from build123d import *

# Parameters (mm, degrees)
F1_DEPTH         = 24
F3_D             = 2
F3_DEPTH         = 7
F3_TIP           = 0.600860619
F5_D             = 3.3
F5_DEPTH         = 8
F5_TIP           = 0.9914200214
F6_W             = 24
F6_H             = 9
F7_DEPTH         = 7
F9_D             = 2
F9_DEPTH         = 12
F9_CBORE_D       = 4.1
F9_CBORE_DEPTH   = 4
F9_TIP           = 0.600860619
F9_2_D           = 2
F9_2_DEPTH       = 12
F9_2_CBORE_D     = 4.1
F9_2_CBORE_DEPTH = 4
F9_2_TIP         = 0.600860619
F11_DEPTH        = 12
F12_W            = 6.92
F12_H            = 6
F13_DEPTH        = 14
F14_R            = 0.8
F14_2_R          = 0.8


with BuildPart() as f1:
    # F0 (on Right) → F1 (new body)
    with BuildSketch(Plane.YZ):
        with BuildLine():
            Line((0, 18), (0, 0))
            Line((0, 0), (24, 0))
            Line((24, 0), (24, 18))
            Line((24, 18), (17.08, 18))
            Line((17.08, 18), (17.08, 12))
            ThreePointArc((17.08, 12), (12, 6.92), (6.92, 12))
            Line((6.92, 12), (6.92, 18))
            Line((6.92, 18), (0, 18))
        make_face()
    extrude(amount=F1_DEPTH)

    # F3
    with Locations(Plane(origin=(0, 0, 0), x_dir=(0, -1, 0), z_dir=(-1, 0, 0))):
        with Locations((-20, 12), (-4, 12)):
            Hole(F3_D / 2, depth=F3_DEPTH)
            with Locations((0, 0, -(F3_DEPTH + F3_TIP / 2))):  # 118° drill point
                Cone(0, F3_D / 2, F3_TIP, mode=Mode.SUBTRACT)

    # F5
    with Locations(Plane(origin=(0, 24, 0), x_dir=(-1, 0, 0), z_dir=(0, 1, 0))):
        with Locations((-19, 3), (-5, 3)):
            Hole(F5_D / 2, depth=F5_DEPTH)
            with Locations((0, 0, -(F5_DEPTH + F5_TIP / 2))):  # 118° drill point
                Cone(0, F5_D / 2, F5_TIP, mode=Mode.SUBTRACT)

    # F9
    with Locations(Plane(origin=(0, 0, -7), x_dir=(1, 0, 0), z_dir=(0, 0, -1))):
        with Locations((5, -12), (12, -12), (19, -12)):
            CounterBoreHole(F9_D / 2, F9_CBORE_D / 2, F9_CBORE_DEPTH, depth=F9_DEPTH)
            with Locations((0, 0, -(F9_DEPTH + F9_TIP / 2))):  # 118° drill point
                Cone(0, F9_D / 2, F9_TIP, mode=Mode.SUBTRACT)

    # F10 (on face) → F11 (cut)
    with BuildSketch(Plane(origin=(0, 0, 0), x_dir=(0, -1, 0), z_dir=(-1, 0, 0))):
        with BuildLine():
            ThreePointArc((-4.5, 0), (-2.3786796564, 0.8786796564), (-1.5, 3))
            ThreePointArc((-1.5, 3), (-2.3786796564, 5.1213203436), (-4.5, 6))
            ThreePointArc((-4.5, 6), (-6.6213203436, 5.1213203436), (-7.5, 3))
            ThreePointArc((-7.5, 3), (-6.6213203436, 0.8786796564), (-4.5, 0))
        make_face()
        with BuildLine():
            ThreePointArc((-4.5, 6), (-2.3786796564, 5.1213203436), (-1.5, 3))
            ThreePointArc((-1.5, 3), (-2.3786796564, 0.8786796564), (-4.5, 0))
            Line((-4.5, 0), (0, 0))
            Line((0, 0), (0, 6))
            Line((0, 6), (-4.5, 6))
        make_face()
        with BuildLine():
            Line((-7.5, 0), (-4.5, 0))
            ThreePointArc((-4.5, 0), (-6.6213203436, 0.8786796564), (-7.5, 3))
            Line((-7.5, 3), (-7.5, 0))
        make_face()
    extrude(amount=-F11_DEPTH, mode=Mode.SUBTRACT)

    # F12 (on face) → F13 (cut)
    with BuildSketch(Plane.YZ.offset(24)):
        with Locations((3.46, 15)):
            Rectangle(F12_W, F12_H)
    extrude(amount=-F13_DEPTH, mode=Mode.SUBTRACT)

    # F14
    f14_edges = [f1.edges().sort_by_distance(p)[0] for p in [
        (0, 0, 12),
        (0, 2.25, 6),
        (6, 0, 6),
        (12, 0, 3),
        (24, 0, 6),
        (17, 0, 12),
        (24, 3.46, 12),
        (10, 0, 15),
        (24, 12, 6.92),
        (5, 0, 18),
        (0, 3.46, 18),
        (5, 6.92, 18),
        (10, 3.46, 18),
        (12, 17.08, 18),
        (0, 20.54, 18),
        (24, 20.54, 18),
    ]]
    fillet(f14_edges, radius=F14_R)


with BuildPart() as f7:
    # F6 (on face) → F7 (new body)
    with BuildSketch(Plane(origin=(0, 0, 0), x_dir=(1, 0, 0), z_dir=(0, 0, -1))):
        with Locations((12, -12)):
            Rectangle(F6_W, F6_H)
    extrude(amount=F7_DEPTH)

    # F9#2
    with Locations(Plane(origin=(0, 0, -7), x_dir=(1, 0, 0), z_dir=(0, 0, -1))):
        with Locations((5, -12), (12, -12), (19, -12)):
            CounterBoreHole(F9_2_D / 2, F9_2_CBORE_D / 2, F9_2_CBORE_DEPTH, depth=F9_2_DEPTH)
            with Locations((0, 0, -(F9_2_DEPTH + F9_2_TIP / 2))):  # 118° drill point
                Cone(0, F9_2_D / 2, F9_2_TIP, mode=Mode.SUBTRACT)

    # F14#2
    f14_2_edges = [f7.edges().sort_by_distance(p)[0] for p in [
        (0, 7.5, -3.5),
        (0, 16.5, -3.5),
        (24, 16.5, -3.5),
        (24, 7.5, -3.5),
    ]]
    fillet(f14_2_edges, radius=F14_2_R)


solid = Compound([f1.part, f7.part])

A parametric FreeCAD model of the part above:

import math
import FreeCAD as App
import Part
import Sketcher

V = App.Vector


def edges_at(feature, points):
    """Names of the edges that pass closest to the given points."""
    edges = feature.Shape.Edges
    near = lambda p: min(range(len(edges)), key=lambda i: edges[i].distToShape(Part.Vertex(*p))[0])
    return sorted({f"Edge{near(p) + 1}" for p in points})


def add_polygon(sketch, points):
    """Adds a closed chain of lines whose ends are joined by coincident constraints."""
    first, n = sketch.GeometryCount, len(points)
    for a, b in zip(points, points[1:] + points[:1]):
        sketch.addGeometry(Part.LineSegment(App.Vector(*a, 0), App.Vector(*b, 0)), False)
    for i in range(n):
        sketch.addConstraint(Sketcher.Constraint("Coincident", first + i, 2, first + (i + 1) % n, 1))

doc = App.newDocument("Part")
params = doc.addObject("Spreadsheet::Sheet", "Params")
for row, (alias, value) in enumerate([
    ("sketch1_width", "24 mm"),
    ("sketch1_height", "18 mm"),
    ("sketch1_height2", "6 mm"),
    ("sketch1_radius", "5.08 mm"),
    ("pad1_length", "24 mm"),
    ("sketch2_diameter", "2 mm"),
    ("hole_diameter", "2 mm"),
    ("hole_depth", "7 mm"),
    ("sketch3_diameter", "3.3 mm"),
    ("hole2_diameter", "3.3 mm"),
    ("hole2_depth", "8 mm"),
    ("sketch4_diameter", "2 mm"),
    ("hole3_diameter", "2 mm"),
    ("hole3_depth", "12 mm"),
    ("hole3_cbore_diameter", "4.1 mm"),
    ("hole3_cbore_depth", "4 mm"),
    ("sketch5_radius", "3 mm"),
    ("sketch5_height", "3 mm"),
    ("sketch5_width", "7.5 mm"),
    ("pocket1_length", "12 mm"),
    ("sketch6_height", "6 mm"),
    ("sketch6_width", "6.92 mm"),
    ("pocket2_length", "14 mm"),
    ("fillet_radius", "0.8 mm"),
    ("sketch7_width", "24 mm"),
    ("sketch7_height", "9 mm"),
    ("pad2_length", "7 mm"),
    ("sketch8_diameter", "2 mm"),
    ("hole4_diameter", "2 mm"),
    ("hole4_depth", "12 mm"),
    ("hole4_cbore_diameter", "4.1 mm"),
    ("hole4_cbore_depth", "4 mm"),
    ("fillet2_radius", "0.8 mm"),
], start=1):
    params.set(f"A{row}", alias)
    params.set(f"B{row}", "=" + value)
    params.setAlias(f"B{row}", alias)

body = doc.addObject("PartDesign::Body", "Body")

# Sketch on YZ plane
sketch1 = body.newObject("Sketcher::SketchObject", "Sketch")
sketch1.AttachmentSupport = (doc.getObject("YZ_Plane"), [""])
sketch1.MapMode = "FlatFace"
sketch1.addGeometry(Part.LineSegment(V(0, 18, 0), V(0, 0, 0)), False)
sketch1.addGeometry(Part.LineSegment(V(0, 0, 0), V(24, 0, 0)), False)
sketch1.addGeometry(Part.LineSegment(V(24, 0, 0), V(24, 18, 0)), False)
sketch1.addGeometry(Part.LineSegment(V(24, 18, 0), V(17, 18, 0)), False)
sketch1.addGeometry(Part.LineSegment(V(17, 18, 0), V(17, 12, 0)), False)
sketch1.addGeometry(Part.ArcOfCircle(Part.Circle(V(12, 12, 0), V(0, 0, 1), 5), math.radians(180), math.radians(360)), False)
sketch1.addGeometry(Part.LineSegment(V(7, 12, 0), V(7, 18, 0)), False)
sketch1.addGeometry(Part.LineSegment(V(7, 18, 0), V(0, 18, 0)), False)
sketch1.addConstraint(Sketcher.Constraint("Coincident", 0, 2, 1, 1))
sketch1.addConstraint(Sketcher.Constraint("Coincident", 1, 2, 2, 1))
sketch1.addConstraint(Sketcher.Constraint("Coincident", 2, 2, 3, 1))
sketch1.addConstraint(Sketcher.Constraint("Coincident", 3, 2, 4, 1))
sketch1.addConstraint(Sketcher.Constraint("Tangent", 4, 2, 5, 2))
sketch1.addConstraint(Sketcher.Constraint("Tangent", 5, 1, 6, 1))
sketch1.addConstraint(Sketcher.Constraint("Coincident", 6, 2, 7, 1))
sketch1.addConstraint(Sketcher.Constraint("Coincident", 7, 2, 0, 1))
sketch1.addConstraint(Sketcher.Constraint("Vertical", 0))
sketch1.addConstraint(Sketcher.Constraint("Horizontal", 1))
sketch1.addConstraint(Sketcher.Constraint("Vertical", 2))
sketch1.addConstraint(Sketcher.Constraint("Horizontal", 3))
sketch1.addConstraint(Sketcher.Constraint("Vertical", 4))
sketch1.addConstraint(Sketcher.Constraint("Vertical", 6))
sketch1.addConstraint(Sketcher.Constraint("Horizontal", 7))
sketch1.addConstraint(Sketcher.Constraint("Coincident", 0, 2, -1, 1))
sketch1.addConstraint(Sketcher.Constraint("Horizontal", 3, 2, 6, 2))
sketch1.addConstraint(Sketcher.Constraint("Equal", 3, 7))
sketch1.addConstraint(Sketcher.Constraint("DistanceX", 1, 1, 1, 2, 24.0))
sketch1.addConstraint(Sketcher.Constraint("DistanceY", 0, 2, 0, 1, 18.0))
sketch1.addConstraint(Sketcher.Constraint("DistanceY", 4, 2, 4, 1, 6.0))
sketch1.addConstraint(Sketcher.Constraint("Radius", 5, 5.08))
sketch1.setExpression("Constraints[18]", "Params.sketch1_width")
sketch1.setExpression("Constraints[19]", "Params.sketch1_height")
sketch1.setExpression("Constraints[20]", "Params.sketch1_height2")
sketch1.setExpression("Constraints[21]", "Params.sketch1_radius")
pad1 = body.newObject("PartDesign::Pad", "Pad")
pad1.Profile = sketch1
pad1.setExpression("Length", "Params.pad1_length")

# Sketch on YZ plane
sketch2 = body.newObject("Sketcher::SketchObject", "Sketch001")
sketch2.AttachmentSupport = (doc.getObject("YZ_Plane"), [""])
sketch2.MapMode = "FlatFace"
sketch2.addGeometry(Part.Circle(V(20, 12, 0), V(0, 0, 1), 1), False)
sketch2.addGeometry(Part.Circle(V(4, 12, 0), V(0, 0, 1), 1), False)
sketch2.addConstraint(Sketcher.Constraint("Equal", 0, 1))
sketch2.addConstraint(Sketcher.Constraint("Horizontal", 0, 3, 1, 3))
sketch2.addConstraint(Sketcher.Constraint("Diameter", 0, 2.0))
sketch2.addConstraint(Sketcher.Constraint("DistanceX", -1, 1, 0, 3, 20.0))
sketch2.addConstraint(Sketcher.Constraint("DistanceY", -1, 1, 0, 3, 12.0))
sketch2.addConstraint(Sketcher.Constraint("DistanceX", -1, 1, 1, 3, 4.0))
sketch2.setExpression("Constraints[2]", "Params.sketch2_diameter")
doc.recompute()
hole = body.newObject("PartDesign::Hole", "Hole")
hole.Profile = sketch2
hole.ThreadType = "None"
hole.setExpression("Diameter", "Params.hole_diameter")
hole.DepthType = "Dimension"
hole.setExpression("Depth", "Params.hole_depth")
hole.DrillPoint = "Angled"
hole.DrillPointAngle = 118
hole.Reversed = True

# Sketch on XZ plane
sketch3 = body.newObject("Sketcher::SketchObject", "Sketch002")
sketch3.AttachmentSupport = (doc.getObject("XZ_Plane"), [""])
sketch3.MapMode = "FlatFace"
sketch3.AttachmentOffset = App.Placement(V(0, 0, -24), App.Rotation())
sketch3.addGeometry(Part.Circle(V(19, 3, 0), V(0, 0, 1), 1.6), False)
sketch3.addGeometry(Part.Circle(V(5, 3, 0), V(0, 0, 1), 1.6), False)
sketch3.addConstraint(Sketcher.Constraint("Equal", 0, 1))
sketch3.addConstraint(Sketcher.Constraint("Horizontal", 0, 3, 1, 3))
sketch3.addConstraint(Sketcher.Constraint("Diameter", 0, 3.3))
sketch3.addConstraint(Sketcher.Constraint("DistanceX", -1, 1, 0, 3, 19.0))
sketch3.addConstraint(Sketcher.Constraint("DistanceY", -1, 1, 0, 3, 3.0))
sketch3.addConstraint(Sketcher.Constraint("DistanceX", -1, 1, 1, 3, 5.0))
sketch3.setExpression("Constraints[2]", "Params.sketch3_diameter")
doc.recompute()
hole2 = body.newObject("PartDesign::Hole", "Hole001")
hole2.Profile = sketch3
hole2.ThreadType = "None"
hole2.setExpression("Diameter", "Params.hole2_diameter")
hole2.DepthType = "Dimension"
hole2.setExpression("Depth", "Params.hole2_depth")
hole2.DrillPoint = "Angled"
hole2.DrillPointAngle = 118
hole2.Reversed = True

# Sketch on XY plane
sketch4 = body.newObject("Sketcher::SketchObject", "Sketch003")
sketch4.AttachmentSupport = (doc.getObject("XY_Plane"), [""])
sketch4.MapMode = "FlatFace"
sketch4.AttachmentOffset = App.Placement(V(0, 0, -7), App.Rotation())
sketch4.addGeometry(Part.Circle(V(5, 12, 0), V(0, 0, 1), 1), False)
sketch4.addGeometry(Part.Circle(V(12, 12, 0), V(0, 0, 1), 1), False)
sketch4.addGeometry(Part.Circle(V(19, 12, 0), V(0, 0, 1), 1), False)
sketch4.addConstraint(Sketcher.Constraint("Equal", 0, 1))
sketch4.addConstraint(Sketcher.Constraint("Equal", 1, 2))
sketch4.addConstraint(Sketcher.Constraint("Horizontal", 0, 3, 1, 3))
sketch4.addConstraint(Sketcher.Constraint("Horizontal", 1, 3, 2, 3))
sketch4.addConstraint(Sketcher.Constraint("Diameter", 0, 2.0))
sketch4.addConstraint(Sketcher.Constraint("DistanceX", -1, 1, 0, 3, 5.0))
sketch4.addConstraint(Sketcher.Constraint("DistanceY", -1, 1, 0, 3, 12.0))
sketch4.addConstraint(Sketcher.Constraint("DistanceX", -1, 1, 1, 3, 12.0))
sketch4.addConstraint(Sketcher.Constraint("DistanceX", -1, 1, 2, 3, 19.0))
sketch4.setExpression("Constraints[4]", "Params.sketch4_diameter")
doc.recompute()
hole3 = body.newObject("PartDesign::Hole", "Hole002")
hole3.Profile = sketch4
hole3.ThreadType = "None"
hole3.setExpression("Diameter", "Params.hole3_diameter")
hole3.DepthType = "Dimension"
hole3.setExpression("Depth", "Params.hole3_depth")
hole3.DrillPoint = "Angled"
hole3.DrillPointAngle = 118
hole3.HoleCutType = "Counterbore"
hole3.setExpression("HoleCutDiameter", "Params.hole3_cbore_diameter")
hole3.setExpression("HoleCutDepth", "Params.hole3_cbore_depth")
hole3.Reversed = True

# Sketch on YZ plane
sketch5 = body.newObject("Sketcher::SketchObject", "Sketch004")
sketch5.AttachmentSupport = (doc.getObject("YZ_Plane"), [""])
sketch5.MapMode = "FlatFace"
sketch5.addGeometry(Part.ArcOfCircle(Part.Circle(V(4.5, 3, 0), V(0, 0, 1), 3), math.radians(0), math.radians(90)), False)
sketch5.addGeometry(Part.LineSegment(V(7.5, 3, 0), V(7.5, 0, 0)), False)
sketch5.addGeometry(Part.LineSegment(V(7.5, 0, 0), V(0, 0, 0)), False)
sketch5.addGeometry(Part.LineSegment(V(0, 0, 0), V(0, 6, 0)), False)
sketch5.addGeometry(Part.LineSegment(V(0, 6, 0), V(4.5, 6, 0)), False)
sketch5.addConstraint(Sketcher.Constraint("Tangent", 0, 1, 1, 1))
sketch5.addConstraint(Sketcher.Constraint("Coincident", 1, 2, 2, 1))
sketch5.addConstraint(Sketcher.Constraint("Coincident", 2, 2, 3, 1))
sketch5.addConstraint(Sketcher.Constraint("Coincident", 3, 2, 4, 1))
sketch5.addConstraint(Sketcher.Constraint("Tangent", 4, 2, 0, 2))
sketch5.addConstraint(Sketcher.Constraint("Vertical", 1))
sketch5.addConstraint(Sketcher.Constraint("Horizontal", 2))
sketch5.addConstraint(Sketcher.Constraint("Vertical", 3))
sketch5.addConstraint(Sketcher.Constraint("Horizontal", 4))
sketch5.addConstraint(Sketcher.Constraint("Coincident", 2, 2, -1, 1))
sketch5.addConstraint(Sketcher.Constraint("Radius", 0, 3.0))
sketch5.addConstraint(Sketcher.Constraint("DistanceY", 1, 2, 1, 1, 3.0))
sketch5.addConstraint(Sketcher.Constraint("DistanceX", 2, 2, 2, 1, 7.5))
sketch5.setExpression("Constraints[10]", "Params.sketch5_radius")
sketch5.setExpression("Constraints[11]", "Params.sketch5_height")
sketch5.setExpression("Constraints[12]", "Params.sketch5_width")
pocket1 = body.newObject("PartDesign::Pocket", "Pocket")
pocket1.Profile = sketch5
pocket1.setExpression("Length", "Params.pocket1_length")
pocket1.Reversed = True

# Sketch on YZ plane
sketch6 = body.newObject("Sketcher::SketchObject", "Sketch005")
sketch6.AttachmentSupport = (doc.getObject("YZ_Plane"), [""])
sketch6.MapMode = "FlatFace"
sketch6.AttachmentOffset = App.Placement(V(0, 0, 24), App.Rotation())
add_polygon(sketch6, [(0, 18), (0, 12), (7, 12), (7, 18)])  # lines 0-3
sketch6.addConstraint(Sketcher.Constraint("Vertical", 0))
sketch6.addConstraint(Sketcher.Constraint("Horizontal", 1))
sketch6.addConstraint(Sketcher.Constraint("Vertical", 2))
sketch6.addConstraint(Sketcher.Constraint("Horizontal", 3))
sketch6.addConstraint(Sketcher.Constraint("PointOnObject", 0, 2, -2))
sketch6.addConstraint(Sketcher.Constraint("DistanceY", 0, 2, 0, 1, 6.0))
sketch6.addConstraint(Sketcher.Constraint("DistanceY", -1, 1, 0, 2, 12.0))
sketch6.addConstraint(Sketcher.Constraint("DistanceX", 1, 1, 1, 2, 6.92))
sketch6.setExpression("Constraints[9]", "Params.sketch6_height")
sketch6.setExpression("Constraints[11]", "Params.sketch6_width")
pocket2 = body.newObject("PartDesign::Pocket", "Pocket001")
pocket2.Profile = sketch6
pocket2.setExpression("Length", "Params.pocket2_length")
doc.recompute()

fillet = body.newObject("PartDesign::Fillet", "Fillet")
fillet.Base = (pocket2, edges_at(pocket2, [
    (0, 0, 12),
    (0, 2.25, 6),
    (6, 0, 6),
    (12, 0, 3),
    (24, 0, 6),
    (17, 0, 12),
    (24, 3.46, 12),
    (10, 0, 15),
    (24, 12, 6.92),
    (5, 0, 18),
    (0, 3.46, 18),
    (5, 6.92, 18),
    (10, 3.46, 18),
    (12, 17.08, 18),
    (0, 20.54, 18),
    (24, 20.54, 18),
]))
fillet.setExpression("Radius", "Params.fillet_radius")
body2 = doc.addObject("PartDesign::Body", "Body001")

# Sketch on XY plane
sketch7 = body2.newObject("Sketcher::SketchObject", "Sketch006")
sketch7.AttachmentSupport = (doc.getObject("XY_Plane001"), [""])
sketch7.MapMode = "FlatFace"
add_polygon(sketch7, [(0, 8), (0, 16), (24, 16), (24, 8)])  # lines 0-3
sketch7.addConstraint(Sketcher.Constraint("Vertical", 0))
sketch7.addConstraint(Sketcher.Constraint("Horizontal", 1))
sketch7.addConstraint(Sketcher.Constraint("Vertical", 2))
sketch7.addConstraint(Sketcher.Constraint("Horizontal", 3))
sketch7.addConstraint(Sketcher.Constraint("PointOnObject", 0, 2, -2))
sketch7.addConstraint(Sketcher.Constraint("DistanceX", 1, 1, 1, 2, 24.0))
sketch7.addConstraint(Sketcher.Constraint("DistanceY", 0, 1, 0, 2, 9.0))
sketch7.addConstraint(Sketcher.Constraint("DistanceY", -1, 1, 0, 2, 16.5))
sketch7.setExpression("Constraints[9]", "Params.sketch7_width")
sketch7.setExpression("Constraints[10]", "Params.sketch7_height")
pad2 = body2.newObject("PartDesign::Pad", "Pad001")
pad2.Profile = sketch7
pad2.setExpression("Length", "Params.pad2_length")
pad2.Reversed = True

# Sketch on XY plane
sketch8 = body2.newObject("Sketcher::SketchObject", "Sketch007")
sketch8.AttachmentSupport = (doc.getObject("XY_Plane001"), [""])
sketch8.MapMode = "FlatFace"
sketch8.AttachmentOffset = App.Placement(V(0, 0, -7), App.Rotation())
sketch8.addGeometry(Part.Circle(V(5, 12, 0), V(0, 0, 1), 1), False)
sketch8.addGeometry(Part.Circle(V(12, 12, 0), V(0, 0, 1), 1), False)
sketch8.addGeometry(Part.Circle(V(19, 12, 0), V(0, 0, 1), 1), False)
sketch8.addConstraint(Sketcher.Constraint("Equal", 0, 1))
sketch8.addConstraint(Sketcher.Constraint("Equal", 1, 2))
sketch8.addConstraint(Sketcher.Constraint("Horizontal", 0, 3, 1, 3))
sketch8.addConstraint(Sketcher.Constraint("Horizontal", 1, 3, 2, 3))
sketch8.addConstraint(Sketcher.Constraint("Diameter", 0, 2.0))
sketch8.addConstraint(Sketcher.Constraint("DistanceX", -1, 1, 0, 3, 5.0))
sketch8.addConstraint(Sketcher.Constraint("DistanceY", -1, 1, 0, 3, 12.0))
sketch8.addConstraint(Sketcher.Constraint("DistanceX", -1, 1, 1, 3, 12.0))
sketch8.addConstraint(Sketcher.Constraint("DistanceX", -1, 1, 2, 3, 19.0))
sketch8.setExpression("Constraints[4]", "Params.sketch8_diameter")
doc.recompute()
hole4 = body2.newObject("PartDesign::Hole", "Hole003")
hole4.Profile = sketch8
hole4.ThreadType = "None"
hole4.setExpression("Diameter", "Params.hole4_diameter")
hole4.DepthType = "Dimension"
hole4.setExpression("Depth", "Params.hole4_depth")
hole4.DrillPoint = "Angled"
hole4.DrillPointAngle = 118
hole4.HoleCutType = "Counterbore"
hole4.setExpression("HoleCutDiameter", "Params.hole4_cbore_diameter")
hole4.setExpression("HoleCutDepth", "Params.hole4_cbore_depth")
hole4.Reversed = True
doc.recompute()

fillet2 = body2.newObject("PartDesign::Fillet", "Fillet001")
fillet2.Base = (hole4, edges_at(hole4, [
    (0, 7.5, -3.5),
    (0, 16.5, -3.5),
    (24, 16.5, -3.5),
    (24, 7.5, -3.5),
]))
fillet2.setExpression("Radius", "Params.fillet2_radius")

doc.recompute()
